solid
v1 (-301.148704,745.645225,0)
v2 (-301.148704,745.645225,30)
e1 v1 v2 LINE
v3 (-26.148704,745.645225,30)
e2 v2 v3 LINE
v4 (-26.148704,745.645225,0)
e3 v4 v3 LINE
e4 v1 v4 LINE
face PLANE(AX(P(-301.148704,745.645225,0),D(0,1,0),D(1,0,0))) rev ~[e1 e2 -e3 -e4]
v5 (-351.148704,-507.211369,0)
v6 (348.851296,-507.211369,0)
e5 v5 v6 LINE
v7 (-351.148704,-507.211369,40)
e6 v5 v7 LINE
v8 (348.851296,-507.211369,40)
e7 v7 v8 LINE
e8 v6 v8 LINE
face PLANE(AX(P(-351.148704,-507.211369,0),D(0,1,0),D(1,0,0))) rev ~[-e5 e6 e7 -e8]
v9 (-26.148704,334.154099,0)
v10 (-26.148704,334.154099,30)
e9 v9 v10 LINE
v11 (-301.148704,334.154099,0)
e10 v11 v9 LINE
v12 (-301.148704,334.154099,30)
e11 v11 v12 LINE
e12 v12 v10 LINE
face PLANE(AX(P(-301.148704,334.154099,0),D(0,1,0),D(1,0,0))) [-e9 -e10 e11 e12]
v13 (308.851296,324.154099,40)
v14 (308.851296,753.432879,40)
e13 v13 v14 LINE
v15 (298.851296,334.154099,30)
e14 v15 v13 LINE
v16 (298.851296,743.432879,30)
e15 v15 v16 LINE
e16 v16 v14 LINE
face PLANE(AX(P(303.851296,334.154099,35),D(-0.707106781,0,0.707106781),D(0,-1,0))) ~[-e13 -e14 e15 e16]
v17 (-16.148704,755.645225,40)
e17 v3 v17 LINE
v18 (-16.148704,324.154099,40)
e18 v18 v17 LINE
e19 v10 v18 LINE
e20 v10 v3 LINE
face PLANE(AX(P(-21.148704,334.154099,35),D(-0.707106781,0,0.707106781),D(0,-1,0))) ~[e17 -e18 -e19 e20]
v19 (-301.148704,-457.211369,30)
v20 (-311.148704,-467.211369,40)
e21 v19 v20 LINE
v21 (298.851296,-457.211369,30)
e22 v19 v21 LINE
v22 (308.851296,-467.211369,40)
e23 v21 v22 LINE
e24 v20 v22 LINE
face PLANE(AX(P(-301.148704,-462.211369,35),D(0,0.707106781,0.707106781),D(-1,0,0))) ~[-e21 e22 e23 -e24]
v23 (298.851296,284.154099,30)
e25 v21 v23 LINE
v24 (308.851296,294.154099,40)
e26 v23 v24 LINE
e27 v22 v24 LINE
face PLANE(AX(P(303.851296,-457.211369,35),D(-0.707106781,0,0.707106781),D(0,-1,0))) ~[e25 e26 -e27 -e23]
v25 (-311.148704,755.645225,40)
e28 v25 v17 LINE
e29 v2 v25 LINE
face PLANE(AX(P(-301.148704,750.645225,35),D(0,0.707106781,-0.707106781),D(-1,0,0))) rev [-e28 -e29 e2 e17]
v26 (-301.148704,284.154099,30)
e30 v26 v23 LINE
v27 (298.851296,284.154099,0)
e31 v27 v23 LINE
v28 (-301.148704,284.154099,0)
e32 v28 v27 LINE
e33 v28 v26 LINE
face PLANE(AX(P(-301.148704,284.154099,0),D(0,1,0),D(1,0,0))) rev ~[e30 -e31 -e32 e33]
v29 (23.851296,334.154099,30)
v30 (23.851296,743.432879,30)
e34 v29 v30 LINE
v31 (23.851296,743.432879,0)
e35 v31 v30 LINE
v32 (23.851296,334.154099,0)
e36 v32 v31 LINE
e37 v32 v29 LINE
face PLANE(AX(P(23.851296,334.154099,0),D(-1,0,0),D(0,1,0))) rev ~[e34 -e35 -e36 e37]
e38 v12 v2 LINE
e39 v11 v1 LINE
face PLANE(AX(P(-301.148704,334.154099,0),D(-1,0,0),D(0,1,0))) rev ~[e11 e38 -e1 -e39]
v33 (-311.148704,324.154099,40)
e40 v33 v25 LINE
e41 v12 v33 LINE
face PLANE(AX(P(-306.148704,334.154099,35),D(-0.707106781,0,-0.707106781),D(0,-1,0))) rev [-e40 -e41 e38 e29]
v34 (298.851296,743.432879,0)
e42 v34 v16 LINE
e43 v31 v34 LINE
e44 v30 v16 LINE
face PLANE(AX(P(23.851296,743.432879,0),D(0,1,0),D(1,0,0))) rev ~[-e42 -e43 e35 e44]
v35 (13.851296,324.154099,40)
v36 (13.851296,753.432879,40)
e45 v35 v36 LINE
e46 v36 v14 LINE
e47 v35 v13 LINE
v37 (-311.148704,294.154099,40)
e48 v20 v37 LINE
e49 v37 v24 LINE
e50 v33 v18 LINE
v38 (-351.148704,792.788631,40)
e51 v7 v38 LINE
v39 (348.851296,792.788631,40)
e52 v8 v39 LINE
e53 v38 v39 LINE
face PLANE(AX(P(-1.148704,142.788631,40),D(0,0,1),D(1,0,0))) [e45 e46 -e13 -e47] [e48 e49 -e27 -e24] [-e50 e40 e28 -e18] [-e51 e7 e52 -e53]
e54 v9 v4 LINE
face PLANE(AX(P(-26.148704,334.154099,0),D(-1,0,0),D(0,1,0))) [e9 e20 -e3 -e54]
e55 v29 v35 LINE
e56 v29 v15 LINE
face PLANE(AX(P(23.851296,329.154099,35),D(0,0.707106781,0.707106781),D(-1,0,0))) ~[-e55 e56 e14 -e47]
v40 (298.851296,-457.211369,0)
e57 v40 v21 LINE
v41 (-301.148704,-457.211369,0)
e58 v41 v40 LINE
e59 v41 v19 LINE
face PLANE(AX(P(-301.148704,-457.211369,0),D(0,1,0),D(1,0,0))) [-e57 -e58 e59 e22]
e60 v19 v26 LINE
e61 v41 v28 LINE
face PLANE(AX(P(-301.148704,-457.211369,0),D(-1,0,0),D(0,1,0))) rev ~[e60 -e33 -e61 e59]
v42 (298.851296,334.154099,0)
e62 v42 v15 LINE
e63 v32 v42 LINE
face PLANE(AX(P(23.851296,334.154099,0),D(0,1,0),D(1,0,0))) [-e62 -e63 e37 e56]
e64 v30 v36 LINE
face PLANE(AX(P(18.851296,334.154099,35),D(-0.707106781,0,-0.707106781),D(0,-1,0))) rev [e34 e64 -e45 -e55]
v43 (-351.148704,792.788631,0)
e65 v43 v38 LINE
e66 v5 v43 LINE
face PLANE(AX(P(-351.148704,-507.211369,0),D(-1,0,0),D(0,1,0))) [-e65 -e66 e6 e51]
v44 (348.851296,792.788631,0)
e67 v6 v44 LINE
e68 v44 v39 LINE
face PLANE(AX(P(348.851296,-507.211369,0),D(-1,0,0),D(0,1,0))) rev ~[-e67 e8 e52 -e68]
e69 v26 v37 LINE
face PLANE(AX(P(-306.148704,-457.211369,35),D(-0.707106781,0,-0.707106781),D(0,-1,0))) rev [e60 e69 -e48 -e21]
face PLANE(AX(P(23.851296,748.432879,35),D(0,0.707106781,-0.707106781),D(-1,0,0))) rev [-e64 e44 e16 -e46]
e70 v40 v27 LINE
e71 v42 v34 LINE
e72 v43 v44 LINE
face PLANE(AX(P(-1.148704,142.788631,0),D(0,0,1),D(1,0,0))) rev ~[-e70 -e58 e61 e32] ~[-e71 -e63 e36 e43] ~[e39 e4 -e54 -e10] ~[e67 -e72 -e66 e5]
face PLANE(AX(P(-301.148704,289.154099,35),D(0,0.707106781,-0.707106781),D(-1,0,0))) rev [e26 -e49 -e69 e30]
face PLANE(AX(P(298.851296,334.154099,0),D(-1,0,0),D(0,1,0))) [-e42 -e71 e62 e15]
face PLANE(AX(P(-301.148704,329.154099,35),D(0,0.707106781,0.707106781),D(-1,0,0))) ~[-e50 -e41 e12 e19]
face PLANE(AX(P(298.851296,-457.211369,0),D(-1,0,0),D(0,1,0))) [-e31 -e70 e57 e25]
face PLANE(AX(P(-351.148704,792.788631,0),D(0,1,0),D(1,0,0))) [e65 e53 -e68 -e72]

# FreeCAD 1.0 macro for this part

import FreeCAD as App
import Part
import Sketcher

V = App.Vector


def edges_at(feature, points):
    """Names of the edges that pass closest to the given points."""
    edges = feature.Shape.Edges
    near = lambda p: min(range(len(edges)), key=lambda i: edges[i].distToShape(Part.Vertex(*p))[0])
    return sorted({f"Edge{near(p) + 1}" for p in points})

doc = App.newDocument("Part")
params = doc.addObject("Spreadsheet::Sheet", "Params")
for row, (alias, value) in enumerate([
    ("sketch1_width", "700 mm"),
    ("sketch1_width2", "600 mm"),
    ("sketch1_width3", "275 mm"),
    ("sketch1_height", "1300 mm"),
    ("pad1_length", "40 mm"),
    ("chamfer_size", "10 mm"),
], start=1):
    params.set(f"A{row}", alias)
    params.set(f"B{row}", "=" + value)
    params.setAlias(f"B{row}", alias)

body = doc.addObject("PartDesign::Body", "Body")

sketch1 = body.newObject("Sketcher::SketchObject", "Sketch")
sketch1.AttachmentSupport = (doc.getObject("XY_Plane"), [""])
sketch1.MapMode = "FlatFace"
sketch1.addGeometry(Part.LineSegment(V(-351.148704, 792.788631, 0), V(-351.148704, -507.211369, 0)), False)
sketch1.addGeometry(Part.LineSegment(V(-351.148704, -507.211369, 0), V(348.851296, -507.211369, 0)), False)
sketch1.addGeometry(Part.LineSegment(V(348.851296, -507.211369, 0), V(348.851296, 792.788631, 0)), False)
sketch1.addGeometry(Part.LineSegment(V(348.851296, 792.788631, 0), V(-351.148704, 792.788631, 0)), False)
sketch1.addGeometry(Part.LineSegment(V(298.851296, -457.211369, 0), V(-301.148704, -457.211369, 0)), False)
sketch1.addGeometry(Part.LineSegment(V(-301.148704, -457.211369, 0), V(-301.148704, 284.154099, 0)), False)
sketch1.addGeometry(Part.LineSegment(V(-301.148704, 284.154099, 0), V(298.851296, 284.154099, 0)), False)
sketch1.addGeometry(Part.LineSegment(V(298.851296, 284.154099, 0), V(298.851296, -457.211369, 0)), False)
sketch1.addGeometry(Part.LineSegment(V(-26.148704, 334.154099, 0), V(-301.148704, 334.154099, 0)), False)
sketch1.addGeometry(Part.LineSegment(V(-301.148704, 334.154099, 0), V(-301.148704, 745.645225, 0)), False)
sketch1.addGeometry(Part.LineSegment(V(-301.148704, 745.645225, 0), V(-26.148704, 745.645225, 0)), False)
sketch1.addGeometry(Part.LineSegment(V(-26.148704, 745.645225, 0), V(-26.148704, 334.154099, 0)), False)
sketch1.addGeometry(Part.LineSegment(V(298.851296, 334.154099, 0), V(23.851296, 334.154099, 0)), False)
sketch1.addGeometry(Part.LineSegment(V(23.851296, 334.154099, 0), V(23.851296, 743.432879, 0)), False)
sketch1.addGeometry(Part.LineSegment(V(23.851296, 743.432879, 0), V(298.851296, 743.432879, 0)), False)
sketch1.addGeometry(Part.LineSegment(V(298.851296, 743.432879, 0), V(298.851296, 334.154099, 0)), False)
sketch1.addConstraint(Sketcher.Constraint("Coincident", 0, 2, 1, 1))
sketch1.addConstraint(Sketcher.Constraint("Coincident", 1, 2, 2, 1))
sketch1.addConstraint(Sketcher.Constraint("Coincident", 2, 2, 3, 1))
sketch1.addConstraint(Sketcher.Constraint("Coincident", 3, 2, 0, 1))
sketch1.addConstraint(Sketcher.Constraint("Coincident", 4, 2, 5, 1))
sketch1.addConstraint(Sketcher.Constraint("Coincident", 5, 2, 6, 1))
sketch1.addConstraint(Sketcher.Constraint("Coincident", 6, 2, 7, 1))
sketch1.addConstraint(Sketcher.Constraint("Coincident", 7, 2, 4, 1))
sketch1.addConstraint(Sketcher.Constraint("Coincident", 8, 2, 9, 1))
sketch1.addConstraint(Sketcher.Constraint("Coincident", 9, 2, 10, 1))
sketch1.addConstraint(Sketcher.Constraint("Coincident", 10, 2, 11, 1))
sketch1.addConstraint(Sketcher.Constraint("Coincident", 11, 2, 8, 1))
sketch1.addConstraint(Sketcher.Constraint("Coincident", 12, 2, 13, 1))
sketch1.addConstraint(Sketcher.Constraint("Coincident", 13, 2, 14, 1))
sketch1.addConstraint(Sketcher.Constraint("Coincident", 14, 2, 15, 1))
sketch1.addConstraint(Sketcher.Constraint("Coincident", 15, 2, 12, 1))
sketch1.addConstraint(Sketcher.Constraint("Vertical", 0))
sketch1.addConstraint(Sketcher.Constraint("Horizontal", 1))
sketch1.addConstraint(Sketcher.Constraint("Vertical", 2))
sketch1.addConstraint(Sketcher.Constraint("Horizontal", 3))
sketch1.addConstraint(Sketcher.Constraint("Horizontal", 4))
sketch1.addConstraint(Sketcher.Constraint("Vertical", 5))
sketch1.addConstraint(Sketcher.Constraint("Horizontal", 6))
sketch1.addConstraint(Sketcher.Constraint("Vertical", 7))
sketch1.addConstraint(Sketcher.Constraint("Horizontal", 8))
sketch1.addConstraint(Sketcher.Constraint("Vertical", 9))
sketch1.addConstraint(Sketcher.Constraint("Horizontal", 10))
sketch1.addConstraint(Sketcher.Constraint("Vertical", 11))
sketch1.addConstraint(Sketcher.Constraint("Horizontal", 12))
sketch1.addConstraint(Sketcher.Constraint("Vertical", 13))
sketch1.addConstraint(Sketcher.Constraint("Horizontal", 14))
sketch1.addConstraint(Sketcher.Constraint("Vertical", 15))
sketch1.addConstraint(Sketcher.Constraint("Horizontal", 11, 2, 12, 2))
sketch1.addConstraint(Sketcher.Constraint("Vertical", 5, 2, 8, 2))
sketch1.addConstraint(Sketcher.Constraint("Vertical", 7, 2, 14, 2))
sketch1.addConstraint(Sketcher.Constraint("Equal", 10, 12))
sketch1.addConstraint(Sketcher.Constraint("DistanceX", 1, 1, 1, 2, 700.0))
sketch1.addConstraint(Sketcher.Constraint("DistanceX", 4, 2, 4, 1, 600.0))
sketch1.addConstraint(Sketcher.Constraint("DistanceX", 8, 2, 8, 1, 275.0))
sketch1.addConstraint(Sketcher.Constraint("DistanceY", 0, 2, 0, 1, 1300.0))
sketch1.addConstraint(Sketcher.Constraint("DistanceX", 0, 2, 4, 2, 50.0))
sketch1.addConstraint(Sketcher.Constraint("DistanceY", 0, 2, 4, 2, 50.0))
sketch1.addConstraint(Sketcher.Constraint("DistanceY", 5, 2, 8, 2, 50.0))
sketch1.addConstraint(Sketcher.Constraint("DistanceY", 5, 1, 5, 2, 741.365468))
sketch1.addConstraint(Sketcher.Constraint("DistanceY", 13, 1, 13, 2, 409.27878))
sketch1.addConstraint(Sketcher.Constraint("DistanceY", -1, 1, 5, 2, 284.154099))
sketch1.addConstraint(Sketcher.Constraint("DistanceY", 9, 1, 9, 2, 411.491126))
sketch1.addConstraint(Sketcher.Constraint("DistanceX", 0, 2, -1, 1, 351.148704))
sketch1.setExpression("Constraints[36]", "Params.sketch1_width")
sketch1.setExpression("Constraints[37]", "Params.sketch1_width2")
sketch1.setExpression("Constraints[38]", "Params.sketch1_width3")
sketch1.setExpression("Constraints[39]", "Params.sketch1_height")
pad1 = body.newObject("PartDesign::Pad", "Pad")
pad1.Profile = sketch1
pad1.setExpression("Length", "Params.pad1_length")
doc.recompute()

chamfer = body.newObject("PartDesign::Chamfer", "Chamfer")
chamfer.Base = (pad1, edges_at(pad1, [
    (-1.149, -457.211, 40),
    (298.851, -86.529, 40),
    (-1.149, 284.154, 40),
    (-301.149, -86.529, 40),
    (23.851, 538.793, 40),
    (161.351, 334.154, 40),
    (-163.649, 334.154, 40),
    (-26.149, 539.9, 40),
    (298.851, 538.793, 40),
    (-301.149, 539.9, 40),
    (-163.649, 745.645, 40),
    (161.351, 743.433, 40),
]))
chamfer.setExpression("Size", "Params.chamfer_size")

doc.recompute()
